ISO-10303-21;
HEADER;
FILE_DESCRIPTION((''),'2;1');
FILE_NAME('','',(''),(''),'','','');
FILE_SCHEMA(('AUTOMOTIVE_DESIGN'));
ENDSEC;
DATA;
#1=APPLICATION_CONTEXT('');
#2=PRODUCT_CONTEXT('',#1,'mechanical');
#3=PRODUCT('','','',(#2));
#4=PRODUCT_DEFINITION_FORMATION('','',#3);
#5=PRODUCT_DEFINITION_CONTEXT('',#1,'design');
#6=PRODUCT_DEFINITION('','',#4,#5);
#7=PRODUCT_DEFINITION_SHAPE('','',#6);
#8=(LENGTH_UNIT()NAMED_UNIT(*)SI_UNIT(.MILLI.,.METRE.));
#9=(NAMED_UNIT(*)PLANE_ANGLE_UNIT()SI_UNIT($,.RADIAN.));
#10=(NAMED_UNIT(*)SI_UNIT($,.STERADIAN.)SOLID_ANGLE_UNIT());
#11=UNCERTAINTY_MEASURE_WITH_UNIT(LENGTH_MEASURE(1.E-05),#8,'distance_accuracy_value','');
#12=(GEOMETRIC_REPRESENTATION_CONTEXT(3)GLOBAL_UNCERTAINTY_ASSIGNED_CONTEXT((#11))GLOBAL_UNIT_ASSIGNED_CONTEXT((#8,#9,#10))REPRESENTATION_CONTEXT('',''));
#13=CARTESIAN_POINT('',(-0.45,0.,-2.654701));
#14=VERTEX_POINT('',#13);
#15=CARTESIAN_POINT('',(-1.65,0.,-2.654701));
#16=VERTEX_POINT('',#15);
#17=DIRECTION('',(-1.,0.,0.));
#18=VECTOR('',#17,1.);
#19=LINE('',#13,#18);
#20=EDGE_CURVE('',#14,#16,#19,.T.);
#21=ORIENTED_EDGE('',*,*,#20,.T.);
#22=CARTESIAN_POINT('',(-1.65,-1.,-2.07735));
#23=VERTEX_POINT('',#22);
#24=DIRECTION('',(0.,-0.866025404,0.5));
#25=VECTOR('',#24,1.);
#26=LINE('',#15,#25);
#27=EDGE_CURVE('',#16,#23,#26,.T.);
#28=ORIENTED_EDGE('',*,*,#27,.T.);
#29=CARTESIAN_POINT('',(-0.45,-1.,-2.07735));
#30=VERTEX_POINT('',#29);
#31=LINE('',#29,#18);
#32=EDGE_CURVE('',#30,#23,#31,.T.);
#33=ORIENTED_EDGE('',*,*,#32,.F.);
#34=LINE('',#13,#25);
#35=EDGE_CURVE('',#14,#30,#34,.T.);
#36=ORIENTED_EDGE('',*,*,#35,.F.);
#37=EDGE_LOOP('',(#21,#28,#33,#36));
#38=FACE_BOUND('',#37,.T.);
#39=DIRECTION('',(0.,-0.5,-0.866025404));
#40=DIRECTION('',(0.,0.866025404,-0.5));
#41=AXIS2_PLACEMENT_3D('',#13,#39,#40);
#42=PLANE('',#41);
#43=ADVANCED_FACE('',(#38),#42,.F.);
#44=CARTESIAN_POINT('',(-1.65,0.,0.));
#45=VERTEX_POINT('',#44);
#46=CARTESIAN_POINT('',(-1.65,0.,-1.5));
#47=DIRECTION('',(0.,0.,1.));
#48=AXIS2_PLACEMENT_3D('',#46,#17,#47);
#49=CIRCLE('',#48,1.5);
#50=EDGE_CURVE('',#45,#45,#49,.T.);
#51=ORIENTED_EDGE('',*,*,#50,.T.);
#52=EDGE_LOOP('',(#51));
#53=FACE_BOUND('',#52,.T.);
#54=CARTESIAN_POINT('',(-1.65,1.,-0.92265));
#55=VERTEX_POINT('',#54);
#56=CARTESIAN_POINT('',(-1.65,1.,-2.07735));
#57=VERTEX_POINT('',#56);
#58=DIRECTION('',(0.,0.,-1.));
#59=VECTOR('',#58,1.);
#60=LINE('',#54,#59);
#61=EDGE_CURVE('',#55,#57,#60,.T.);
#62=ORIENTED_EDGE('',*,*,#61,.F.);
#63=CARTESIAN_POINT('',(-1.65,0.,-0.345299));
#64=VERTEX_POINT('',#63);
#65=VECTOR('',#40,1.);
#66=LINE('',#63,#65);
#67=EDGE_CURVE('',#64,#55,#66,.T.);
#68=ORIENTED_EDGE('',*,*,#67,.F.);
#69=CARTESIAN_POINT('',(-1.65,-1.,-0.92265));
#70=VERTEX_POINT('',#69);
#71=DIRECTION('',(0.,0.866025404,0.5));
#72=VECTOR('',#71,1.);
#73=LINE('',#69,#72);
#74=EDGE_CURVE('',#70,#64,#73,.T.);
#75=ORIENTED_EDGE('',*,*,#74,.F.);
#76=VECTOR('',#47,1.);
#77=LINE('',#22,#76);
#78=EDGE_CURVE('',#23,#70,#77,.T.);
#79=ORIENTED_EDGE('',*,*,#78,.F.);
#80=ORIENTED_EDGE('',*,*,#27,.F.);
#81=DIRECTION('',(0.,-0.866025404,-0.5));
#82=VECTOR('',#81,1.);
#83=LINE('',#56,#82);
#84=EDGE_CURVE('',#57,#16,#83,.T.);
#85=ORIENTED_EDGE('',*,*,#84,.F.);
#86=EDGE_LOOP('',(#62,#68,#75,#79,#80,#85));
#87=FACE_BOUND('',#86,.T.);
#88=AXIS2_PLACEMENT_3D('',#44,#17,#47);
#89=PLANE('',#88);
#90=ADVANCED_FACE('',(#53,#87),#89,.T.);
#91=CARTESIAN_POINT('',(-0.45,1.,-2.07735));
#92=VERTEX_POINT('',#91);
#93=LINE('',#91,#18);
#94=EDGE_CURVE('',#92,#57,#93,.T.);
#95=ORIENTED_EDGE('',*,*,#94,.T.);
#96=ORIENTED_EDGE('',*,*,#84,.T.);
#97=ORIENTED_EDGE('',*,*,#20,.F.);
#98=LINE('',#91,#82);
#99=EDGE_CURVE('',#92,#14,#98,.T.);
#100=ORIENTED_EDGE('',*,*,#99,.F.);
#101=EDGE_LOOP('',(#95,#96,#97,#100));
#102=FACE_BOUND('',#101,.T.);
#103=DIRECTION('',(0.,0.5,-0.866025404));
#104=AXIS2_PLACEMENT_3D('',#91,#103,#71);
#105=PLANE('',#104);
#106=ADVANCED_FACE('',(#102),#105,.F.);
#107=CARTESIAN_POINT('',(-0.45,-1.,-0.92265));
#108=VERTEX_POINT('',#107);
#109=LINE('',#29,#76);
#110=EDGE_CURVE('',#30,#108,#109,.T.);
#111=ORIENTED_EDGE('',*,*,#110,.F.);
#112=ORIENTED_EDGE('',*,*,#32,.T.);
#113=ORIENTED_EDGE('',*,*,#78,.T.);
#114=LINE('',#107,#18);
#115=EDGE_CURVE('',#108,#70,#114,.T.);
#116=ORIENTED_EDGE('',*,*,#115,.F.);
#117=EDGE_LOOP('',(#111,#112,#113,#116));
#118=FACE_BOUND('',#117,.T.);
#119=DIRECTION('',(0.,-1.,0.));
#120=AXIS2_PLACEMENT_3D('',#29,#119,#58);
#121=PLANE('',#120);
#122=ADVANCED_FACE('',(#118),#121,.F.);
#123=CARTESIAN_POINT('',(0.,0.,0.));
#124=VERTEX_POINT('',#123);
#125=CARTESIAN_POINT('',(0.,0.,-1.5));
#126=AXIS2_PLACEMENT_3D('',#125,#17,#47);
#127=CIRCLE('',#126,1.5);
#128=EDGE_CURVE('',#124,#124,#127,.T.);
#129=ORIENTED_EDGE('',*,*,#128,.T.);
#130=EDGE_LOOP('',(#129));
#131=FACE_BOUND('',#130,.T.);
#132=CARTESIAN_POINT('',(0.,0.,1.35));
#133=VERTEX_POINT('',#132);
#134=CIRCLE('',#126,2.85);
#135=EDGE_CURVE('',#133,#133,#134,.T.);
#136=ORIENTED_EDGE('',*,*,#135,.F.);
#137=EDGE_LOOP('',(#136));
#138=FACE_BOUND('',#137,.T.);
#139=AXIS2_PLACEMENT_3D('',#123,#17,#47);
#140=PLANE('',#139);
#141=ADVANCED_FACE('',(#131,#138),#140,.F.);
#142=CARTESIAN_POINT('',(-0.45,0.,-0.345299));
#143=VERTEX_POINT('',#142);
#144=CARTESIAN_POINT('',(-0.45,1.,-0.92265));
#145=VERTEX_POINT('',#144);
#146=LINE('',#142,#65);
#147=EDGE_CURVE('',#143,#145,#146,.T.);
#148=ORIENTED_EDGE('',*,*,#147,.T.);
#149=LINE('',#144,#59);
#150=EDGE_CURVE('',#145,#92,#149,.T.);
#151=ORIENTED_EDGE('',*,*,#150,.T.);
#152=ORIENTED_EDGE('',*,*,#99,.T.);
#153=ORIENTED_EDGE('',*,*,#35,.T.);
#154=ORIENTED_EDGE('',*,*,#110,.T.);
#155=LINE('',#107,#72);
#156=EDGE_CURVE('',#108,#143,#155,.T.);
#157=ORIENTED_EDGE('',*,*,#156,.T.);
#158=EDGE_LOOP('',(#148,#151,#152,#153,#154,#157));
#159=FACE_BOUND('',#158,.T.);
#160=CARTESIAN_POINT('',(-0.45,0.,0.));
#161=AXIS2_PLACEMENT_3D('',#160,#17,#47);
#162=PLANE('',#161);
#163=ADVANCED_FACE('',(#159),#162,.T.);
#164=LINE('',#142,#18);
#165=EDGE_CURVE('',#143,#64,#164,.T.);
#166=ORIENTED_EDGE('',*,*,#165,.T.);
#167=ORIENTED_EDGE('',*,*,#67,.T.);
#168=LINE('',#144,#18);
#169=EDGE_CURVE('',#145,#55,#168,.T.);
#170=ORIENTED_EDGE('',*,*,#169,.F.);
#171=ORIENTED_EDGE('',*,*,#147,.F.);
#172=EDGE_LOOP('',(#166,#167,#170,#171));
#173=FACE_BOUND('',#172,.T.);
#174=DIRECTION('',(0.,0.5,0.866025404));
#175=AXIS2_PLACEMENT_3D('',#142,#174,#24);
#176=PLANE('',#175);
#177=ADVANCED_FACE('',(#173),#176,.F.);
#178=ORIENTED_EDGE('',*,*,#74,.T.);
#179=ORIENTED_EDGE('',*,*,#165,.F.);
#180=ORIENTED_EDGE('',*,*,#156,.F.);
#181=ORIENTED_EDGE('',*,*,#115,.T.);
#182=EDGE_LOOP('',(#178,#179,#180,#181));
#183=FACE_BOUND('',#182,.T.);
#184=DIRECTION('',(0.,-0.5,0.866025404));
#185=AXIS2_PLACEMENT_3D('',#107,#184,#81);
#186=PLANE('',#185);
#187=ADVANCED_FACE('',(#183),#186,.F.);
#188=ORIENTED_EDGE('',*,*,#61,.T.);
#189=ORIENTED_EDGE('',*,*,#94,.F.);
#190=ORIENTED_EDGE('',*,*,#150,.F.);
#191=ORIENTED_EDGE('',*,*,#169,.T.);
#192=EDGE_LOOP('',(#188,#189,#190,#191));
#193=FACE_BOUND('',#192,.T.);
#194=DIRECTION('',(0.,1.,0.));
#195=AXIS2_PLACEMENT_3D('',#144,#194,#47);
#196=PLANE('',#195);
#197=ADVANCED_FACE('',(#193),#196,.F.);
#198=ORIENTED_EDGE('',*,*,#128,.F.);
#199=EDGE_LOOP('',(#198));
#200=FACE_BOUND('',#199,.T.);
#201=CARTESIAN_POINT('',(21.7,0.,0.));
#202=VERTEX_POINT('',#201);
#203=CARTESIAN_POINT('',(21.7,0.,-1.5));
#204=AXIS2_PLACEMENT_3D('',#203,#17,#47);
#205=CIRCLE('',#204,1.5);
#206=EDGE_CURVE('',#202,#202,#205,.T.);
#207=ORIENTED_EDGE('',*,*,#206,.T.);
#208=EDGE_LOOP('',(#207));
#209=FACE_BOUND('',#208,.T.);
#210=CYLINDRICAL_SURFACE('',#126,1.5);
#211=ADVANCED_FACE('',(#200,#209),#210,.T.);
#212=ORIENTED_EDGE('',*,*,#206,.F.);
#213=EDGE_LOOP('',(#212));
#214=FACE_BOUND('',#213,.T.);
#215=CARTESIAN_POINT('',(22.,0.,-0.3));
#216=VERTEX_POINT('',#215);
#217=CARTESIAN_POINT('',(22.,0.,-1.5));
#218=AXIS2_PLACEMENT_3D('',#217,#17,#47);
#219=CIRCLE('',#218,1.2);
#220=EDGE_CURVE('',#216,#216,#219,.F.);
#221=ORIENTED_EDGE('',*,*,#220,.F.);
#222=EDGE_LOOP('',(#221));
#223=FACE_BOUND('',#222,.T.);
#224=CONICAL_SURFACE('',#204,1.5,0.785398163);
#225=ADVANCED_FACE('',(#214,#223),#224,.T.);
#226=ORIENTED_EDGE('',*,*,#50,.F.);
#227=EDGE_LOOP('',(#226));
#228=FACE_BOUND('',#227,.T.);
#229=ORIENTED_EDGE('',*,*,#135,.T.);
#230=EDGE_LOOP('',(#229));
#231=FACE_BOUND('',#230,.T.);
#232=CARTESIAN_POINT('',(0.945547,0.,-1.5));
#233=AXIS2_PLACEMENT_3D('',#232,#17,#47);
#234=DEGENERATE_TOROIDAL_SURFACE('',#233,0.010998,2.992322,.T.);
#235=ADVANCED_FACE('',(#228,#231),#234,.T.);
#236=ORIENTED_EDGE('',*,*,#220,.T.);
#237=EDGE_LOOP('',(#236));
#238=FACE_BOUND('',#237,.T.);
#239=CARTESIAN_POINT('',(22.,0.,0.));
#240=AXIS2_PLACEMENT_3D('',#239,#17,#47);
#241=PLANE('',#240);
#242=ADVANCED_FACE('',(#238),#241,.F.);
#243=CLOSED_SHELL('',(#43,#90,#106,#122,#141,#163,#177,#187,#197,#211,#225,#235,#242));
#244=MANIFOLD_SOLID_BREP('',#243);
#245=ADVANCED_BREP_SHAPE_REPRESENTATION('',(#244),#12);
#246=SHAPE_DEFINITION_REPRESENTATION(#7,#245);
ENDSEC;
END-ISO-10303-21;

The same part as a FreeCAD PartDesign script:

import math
import FreeCAD as App
import Part
import Sketcher
from FreeCAD import Vector
Q = App.Units.Quantity


def edges_at(feature, points):
    """Names of the edges that pass closest to the given points."""
    edges = feature.Shape.Edges
    near = lambda p: min(range(len(edges)), key=lambda i: edges[i].distToShape(Part.Vertex(*p))[0])
    return sorted({f"Edge{near(p) + 1}" for p in points})

doc = App.newDocument("Part")
body = doc.addObject("PartDesign::Body", "Body")

# Sketch on XZ plane
sketch1 = body.newObject("Sketcher::SketchObject", "Sketch")
sketch1.AttachmentSupport = (doc.getObject("XZ_Plane"), [""])
sketch1.MapMode = "FlatFace"
sketch1.addGeometry([
    Part.LineSegment(Vector(22, -1.5, 0), Vector(22, -3, 0)),  # 0
    Part.LineSegment(Vector(22, -3, 0), Vector(0, -3, 0)),  # 1
    Part.LineSegment(Vector(0, -3, 0), Vector(0, -4.3, 0)),  # 2
    Part.ArcOfCircle(Part.Circle(Vector(0.9, -1.5, 0), Vector(0, 0, 1), 3), math.radians(-150), math.radians(-108)),  # 3
    Part.LineSegment(Vector(-1.6, -3, 0), Vector(-1.6, -1.5, 0)),  # 4
    Part.LineSegment(Vector(-1.6, -1.5, 0), Vector(22, -1.5, 0)),  # 5
], False)
sketch1.addGeometry(Part.LineSegment(Vector(-1.6, -1.5, 0), Vector(22, -1.5, 0)), True)  # axis
sketch1.addConstraint([
    Sketcher.Constraint("Coincident", 0, 2, 1, 1),
    Sketcher.Constraint("Coincident", 1, 2, 2, 1),
    Sketcher.Constraint("Coincident", 2, 2, 3, 2),
    Sketcher.Constraint("Coincident", 3, 1, 4, 1),
    Sketcher.Constraint("Coincident", 4, 2, 5, 1),
    Sketcher.Constraint("Coincident", 5, 2, 0, 1),
    Sketcher.Constraint("Vertical", 0),
    Sketcher.Constraint("Horizontal", 1),
    Sketcher.Constraint("Vertical", 2),
    Sketcher.Constraint("Vertical", 4),
    Sketcher.Constraint("Horizontal", 5),
    Sketcher.Constraint("Horizontal", 6),
    Sketcher.Constraint("Coincident", 6, 1, 4, 2),
    Sketcher.Constraint("PointOnObject", 1, 2, -2),
    Sketcher.Constraint("Horizontal", 1, 2, 3, 1),
    Sketcher.Constraint("Vertical", 0, 2, 6, 2),
    Sketcher.Constraint("DistanceX", 1, 2, 1, 1, Q("22 mm")),
    Sketcher.Constraint("DistanceY", 0, 2, 0, 1, Q("1.5 mm")),
    Sketcher.Constraint("DistanceY", 0, 2, -1, 1, Q("3 mm")),
    Sketcher.Constraint("DistanceX", 5, 1, 5, 2, Q("23.65 mm")),
    Sketcher.Constraint("DistanceY", 2, 2, 2, 1, Q("1.35 mm")),
    Sketcher.Constraint("Radius", 3, Q("2.992322 mm")),
])
revolution = body.newObject("PartDesign::Revolution", "Revolution")
revolution.Profile = sketch1
revolution.ReferenceAxis = (sketch1, ["Axis0"])
revolution.Angle = 360
doc.recompute()

chamfer = body.newObject("PartDesign::Chamfer", "Chamfer")
chamfer.Base = (revolution, edges_at(revolution, [(22, 0, 0)]))
chamfer.Size = 0.3

# Sketch on YZ plane
sketch2 = body.newObject("Sketcher::SketchObject", "Sketch001")
sketch2.AttachmentSupport = (doc.getObject("YZ_Plane"), [""])
sketch2.MapMode = "FlatFace"
sketch2.AttachmentOffset = App.Placement(Vector(0, 0, -1.65), App.Rotation())
sketch2.addGeometry([
    Part.LineSegment(Vector(0, -0.3, 0), Vector(1, -0.9, 0)),  # 0
    Part.LineSegment(Vector(1, -0.9, 0), Vector(1, -2.1, 0)),  # 1
    Part.LineSegment(Vector(1, -2.1, 0), Vector(0, -2.7, 0)),  # 2
    Part.LineSegment(Vector(0, -2.7, 0), Vector(-1, -2.1, 0)),  # 3
    Part.LineSegment(Vector(-1, -2.1, 0), Vector(-1, -0.9, 0)),  # 4
    Part.LineSegment(Vector(-1, -0.9, 0), Vector(0, -0.3, 0)),  # 5
], False)
sketch2.addConstraint([
    Sketcher.Constraint("Coincident", 0, 2, 1, 1),
    Sketcher.Constraint("Coincident", 1, 2, 2, 1),
    Sketcher.Constraint("Coincident", 2, 2, 3, 1),
    Sketcher.Constraint("Coincident", 3, 2, 4, 1),
    Sketcher.Constraint("Coincident", 4, 2, 5, 1),
    Sketcher.Constraint("Coincident", 5, 2, 0, 1),
    Sketcher.Constraint("Vertical", 1),
    Sketcher.Constraint("Vertical", 4),
    Sketcher.Constraint("Symmetric", 1, 2, 3, 2, -2),
    Sketcher.Constraint("PointOnObject", 2, 2, -2),
    Sketcher.Constraint("PointOnObject", 5, 2, -2),
    Sketcher.Constraint("Parallel", 0, 3),
    Sketcher.Constraint("Parallel", 2, 5),
    Sketcher.Constraint("Angle", 0, Q("-30 deg")),
    Sketcher.Constraint("DistanceX", -1, 1, 0, 2, Q("1 mm")),
    Sketcher.Constraint("DistanceY", 1, 2, 1, 1, Q("1.154701 mm")),
    Sketcher.Constraint("DistanceY", 2, 2, -1, 1, Q("2.654701 mm")),
])
pocket1 = body.newObject("PartDesign::Pocket", "Pocket")
pocket1.Profile = sketch2
pocket1.Length = 1.2
pocket1.Reversed = True

doc.recompute()
